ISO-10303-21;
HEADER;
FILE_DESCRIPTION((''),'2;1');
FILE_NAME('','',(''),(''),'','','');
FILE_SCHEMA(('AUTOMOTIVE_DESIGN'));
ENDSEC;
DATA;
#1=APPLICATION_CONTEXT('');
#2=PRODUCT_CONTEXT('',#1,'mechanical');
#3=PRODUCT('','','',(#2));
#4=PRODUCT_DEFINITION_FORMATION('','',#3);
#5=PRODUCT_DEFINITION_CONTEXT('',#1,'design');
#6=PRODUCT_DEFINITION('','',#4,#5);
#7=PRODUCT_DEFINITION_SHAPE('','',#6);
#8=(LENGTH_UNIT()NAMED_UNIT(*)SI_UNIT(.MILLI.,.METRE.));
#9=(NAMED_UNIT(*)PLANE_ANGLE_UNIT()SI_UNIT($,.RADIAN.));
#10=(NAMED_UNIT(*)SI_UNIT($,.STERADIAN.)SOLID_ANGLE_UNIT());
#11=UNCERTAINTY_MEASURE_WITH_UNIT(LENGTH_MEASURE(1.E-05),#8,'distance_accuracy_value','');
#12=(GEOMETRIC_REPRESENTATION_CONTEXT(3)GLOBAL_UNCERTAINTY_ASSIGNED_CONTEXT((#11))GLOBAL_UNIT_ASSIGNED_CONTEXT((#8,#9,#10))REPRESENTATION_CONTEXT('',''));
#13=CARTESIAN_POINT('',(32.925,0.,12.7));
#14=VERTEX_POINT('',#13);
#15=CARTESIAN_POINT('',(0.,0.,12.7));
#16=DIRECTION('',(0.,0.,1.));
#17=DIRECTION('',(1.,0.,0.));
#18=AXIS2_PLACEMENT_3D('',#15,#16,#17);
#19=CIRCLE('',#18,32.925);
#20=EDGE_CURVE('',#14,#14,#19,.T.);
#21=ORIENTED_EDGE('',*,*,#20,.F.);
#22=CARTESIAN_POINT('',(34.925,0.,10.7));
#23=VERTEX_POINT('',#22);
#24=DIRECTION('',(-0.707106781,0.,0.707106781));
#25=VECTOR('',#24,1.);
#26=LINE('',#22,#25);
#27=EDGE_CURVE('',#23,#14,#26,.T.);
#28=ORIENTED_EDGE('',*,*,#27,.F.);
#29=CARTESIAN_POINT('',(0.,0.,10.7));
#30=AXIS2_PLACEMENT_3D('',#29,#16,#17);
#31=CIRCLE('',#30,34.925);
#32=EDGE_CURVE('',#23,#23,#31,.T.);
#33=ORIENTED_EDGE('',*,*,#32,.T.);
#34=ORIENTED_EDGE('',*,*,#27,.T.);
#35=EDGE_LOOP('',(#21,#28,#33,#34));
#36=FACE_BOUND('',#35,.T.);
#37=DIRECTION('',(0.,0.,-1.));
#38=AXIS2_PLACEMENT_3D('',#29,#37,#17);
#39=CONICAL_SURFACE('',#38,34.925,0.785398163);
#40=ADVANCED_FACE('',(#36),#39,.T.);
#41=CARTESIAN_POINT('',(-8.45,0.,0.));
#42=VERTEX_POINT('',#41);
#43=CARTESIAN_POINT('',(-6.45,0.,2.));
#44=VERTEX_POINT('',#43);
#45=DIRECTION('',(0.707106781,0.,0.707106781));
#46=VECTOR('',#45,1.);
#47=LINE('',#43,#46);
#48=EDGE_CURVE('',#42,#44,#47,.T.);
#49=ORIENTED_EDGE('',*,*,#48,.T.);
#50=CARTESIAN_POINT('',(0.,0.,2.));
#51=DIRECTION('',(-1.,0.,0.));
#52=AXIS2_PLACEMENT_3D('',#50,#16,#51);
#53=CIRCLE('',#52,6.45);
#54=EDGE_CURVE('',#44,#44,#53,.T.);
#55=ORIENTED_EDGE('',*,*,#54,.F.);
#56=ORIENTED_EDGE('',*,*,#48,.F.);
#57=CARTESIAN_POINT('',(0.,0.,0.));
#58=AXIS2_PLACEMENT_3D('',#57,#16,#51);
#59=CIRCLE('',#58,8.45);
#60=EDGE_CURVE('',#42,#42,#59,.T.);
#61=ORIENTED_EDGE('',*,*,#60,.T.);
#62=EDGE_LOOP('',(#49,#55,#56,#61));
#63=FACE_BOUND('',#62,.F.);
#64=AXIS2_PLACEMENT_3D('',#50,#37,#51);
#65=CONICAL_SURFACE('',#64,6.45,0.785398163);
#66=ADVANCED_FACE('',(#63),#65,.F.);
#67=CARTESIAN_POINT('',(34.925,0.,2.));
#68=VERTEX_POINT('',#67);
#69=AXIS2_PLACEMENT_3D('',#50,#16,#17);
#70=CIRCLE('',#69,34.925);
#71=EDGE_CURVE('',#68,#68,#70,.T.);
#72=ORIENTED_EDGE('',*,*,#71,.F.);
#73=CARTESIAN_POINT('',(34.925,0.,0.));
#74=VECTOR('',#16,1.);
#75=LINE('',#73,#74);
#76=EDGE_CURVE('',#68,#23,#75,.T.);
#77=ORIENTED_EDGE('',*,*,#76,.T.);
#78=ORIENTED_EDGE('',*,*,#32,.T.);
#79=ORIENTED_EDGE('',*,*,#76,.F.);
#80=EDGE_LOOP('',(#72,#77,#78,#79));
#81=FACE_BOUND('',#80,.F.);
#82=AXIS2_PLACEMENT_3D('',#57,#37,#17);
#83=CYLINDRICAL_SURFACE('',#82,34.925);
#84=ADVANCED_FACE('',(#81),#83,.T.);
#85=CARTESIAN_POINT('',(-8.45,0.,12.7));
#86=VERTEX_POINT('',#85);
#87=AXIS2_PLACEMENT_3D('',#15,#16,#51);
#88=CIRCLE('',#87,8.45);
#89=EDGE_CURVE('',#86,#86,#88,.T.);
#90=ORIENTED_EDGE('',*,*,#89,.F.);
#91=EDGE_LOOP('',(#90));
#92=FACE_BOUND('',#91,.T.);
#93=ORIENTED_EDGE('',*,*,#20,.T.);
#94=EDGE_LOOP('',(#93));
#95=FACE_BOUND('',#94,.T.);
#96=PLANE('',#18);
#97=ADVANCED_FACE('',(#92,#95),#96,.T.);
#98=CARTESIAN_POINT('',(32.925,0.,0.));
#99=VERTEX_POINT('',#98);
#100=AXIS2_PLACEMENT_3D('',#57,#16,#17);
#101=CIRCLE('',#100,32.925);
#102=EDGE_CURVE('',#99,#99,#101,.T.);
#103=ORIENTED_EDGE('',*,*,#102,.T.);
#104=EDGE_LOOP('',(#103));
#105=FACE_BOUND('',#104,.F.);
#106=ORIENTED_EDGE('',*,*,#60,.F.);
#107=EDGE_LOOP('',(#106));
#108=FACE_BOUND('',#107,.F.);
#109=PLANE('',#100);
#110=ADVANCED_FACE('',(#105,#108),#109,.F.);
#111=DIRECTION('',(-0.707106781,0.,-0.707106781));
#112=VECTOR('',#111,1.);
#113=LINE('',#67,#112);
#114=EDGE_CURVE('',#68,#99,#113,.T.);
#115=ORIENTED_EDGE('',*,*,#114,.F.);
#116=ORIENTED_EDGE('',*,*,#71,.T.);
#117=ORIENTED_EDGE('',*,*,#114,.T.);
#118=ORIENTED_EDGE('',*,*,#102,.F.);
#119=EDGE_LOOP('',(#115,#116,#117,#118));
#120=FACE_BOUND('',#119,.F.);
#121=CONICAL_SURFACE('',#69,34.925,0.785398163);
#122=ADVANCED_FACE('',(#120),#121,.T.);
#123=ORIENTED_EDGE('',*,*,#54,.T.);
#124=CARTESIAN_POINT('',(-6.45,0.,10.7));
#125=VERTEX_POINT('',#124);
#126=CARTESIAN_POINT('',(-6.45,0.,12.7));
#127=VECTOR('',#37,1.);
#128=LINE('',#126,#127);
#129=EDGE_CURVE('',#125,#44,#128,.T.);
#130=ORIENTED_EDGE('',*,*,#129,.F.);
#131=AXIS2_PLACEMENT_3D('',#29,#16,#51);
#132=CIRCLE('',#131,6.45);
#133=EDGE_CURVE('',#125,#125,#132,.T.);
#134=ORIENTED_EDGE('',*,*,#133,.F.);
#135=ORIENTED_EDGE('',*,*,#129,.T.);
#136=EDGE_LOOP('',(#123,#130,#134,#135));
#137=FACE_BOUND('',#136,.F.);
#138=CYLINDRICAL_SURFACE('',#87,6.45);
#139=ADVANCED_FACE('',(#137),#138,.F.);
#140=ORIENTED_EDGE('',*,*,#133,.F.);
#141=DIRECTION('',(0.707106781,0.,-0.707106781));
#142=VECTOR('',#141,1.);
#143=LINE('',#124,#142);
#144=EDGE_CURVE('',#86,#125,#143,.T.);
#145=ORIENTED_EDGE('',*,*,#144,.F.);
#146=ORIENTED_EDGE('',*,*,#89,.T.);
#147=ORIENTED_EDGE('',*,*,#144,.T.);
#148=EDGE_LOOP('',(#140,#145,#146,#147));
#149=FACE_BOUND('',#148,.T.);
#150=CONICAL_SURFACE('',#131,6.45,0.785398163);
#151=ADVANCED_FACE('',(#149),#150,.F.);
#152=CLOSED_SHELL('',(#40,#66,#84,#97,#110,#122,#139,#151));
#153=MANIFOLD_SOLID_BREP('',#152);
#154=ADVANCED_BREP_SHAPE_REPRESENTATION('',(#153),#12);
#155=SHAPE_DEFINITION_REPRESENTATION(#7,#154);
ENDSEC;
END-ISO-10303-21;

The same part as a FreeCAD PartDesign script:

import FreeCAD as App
import Part
import Sketcher

V = App.Vector


def edges_at(feature, points):
    """Names of the edges that pass closest to the given points."""
    edges = feature.Shape.Edges
    near = lambda p: min(range(len(edges)), key=lambda i: edges[i].distToShape(Part.Vertex(*p))[0])
    return sorted({f"Edge{near(p) + 1}" for p in points})

doc = App.newDocument("Part")
params = doc.addObject("Spreadsheet::Sheet", "Params")
for row, (alias, value) in enumerate([
    ("sketch1_diameter", "69.85 mm"),
    ("pad1_length", "12.7 mm"),
    ("sketch2_diameter", "12.9 mm"),
    ("chamfer_size", "2 mm"),
], start=1):
    params.set(f"A{row}", alias)
    params.set(f"B{row}", "=" + value)
    params.setAlias(f"B{row}", alias)

body = doc.addObject("PartDesign::Body", "Body")

sketch1 = doc.addObject("Sketcher::SketchObject", "Sketch")
body.addObject(sketch1)
sketch1.AttachmentSupport = (doc.XY_Plane, [""])
sketch1.MapMode = "FlatFace"
sketch1.addGeometry(Part.Circle(V(0, 0, 0), V(0, 0, 1), 35), False)
sketch1.addConstraint([
    Sketcher.Constraint("Coincident", 0, 3, -1, 1),
    Sketcher.Constraint("Diameter", 0, 69.85),
])
sketch1.setExpression("Constraints[1]", "Params.sketch1_diameter")
pad1 = doc.addObject("PartDesign::Pad", "Pad")
body.addObject(pad1)
pad1.Profile = sketch1
pad1.setExpression("Length", "Params.pad1_length")

sketch2 = doc.addObject("Sketcher::SketchObject", "Sketch001")
body.addObject(sketch2)
sketch2.AttachmentSupport = (doc.XY_Plane, [""])
sketch2.MapMode = "FlatFace"
sketch2.AttachmentOffset = App.Placement(V(0, 0, 12.7), App.Rotation())
sketch2.addGeometry(Part.Circle(V(0, 0, 0), V(0, 0, 1), 6), False)
sketch2.addConstraint([
    Sketcher.Constraint("Coincident", 0, 3, -1, 1),
    Sketcher.Constraint("Diameter", 0, 12.9),
])
sketch2.setExpression("Constraints[1]", "Params.sketch2_diameter")
pocket1 = doc.addObject("PartDesign::Pocket", "Pocket")
body.addObject(pocket1)
pocket1.Profile = sketch2
pocket1.Type = "ThroughAll"
doc.recompute()

chamfer = doc.addObject("PartDesign::Chamfer", "Chamfer")
body.addObject(chamfer)
chamfer.Base = (pocket1, edges_at(pocket1, [
    (6.013, -2.332, 12.7),
    (-32.562, -12.629, 12.7),
    (-32.562, -12.629, 0),
    (6.013, 2.332, 0),
]))
chamfer.setExpression("Size", "Params.chamfer_size")

doc.recompute()
